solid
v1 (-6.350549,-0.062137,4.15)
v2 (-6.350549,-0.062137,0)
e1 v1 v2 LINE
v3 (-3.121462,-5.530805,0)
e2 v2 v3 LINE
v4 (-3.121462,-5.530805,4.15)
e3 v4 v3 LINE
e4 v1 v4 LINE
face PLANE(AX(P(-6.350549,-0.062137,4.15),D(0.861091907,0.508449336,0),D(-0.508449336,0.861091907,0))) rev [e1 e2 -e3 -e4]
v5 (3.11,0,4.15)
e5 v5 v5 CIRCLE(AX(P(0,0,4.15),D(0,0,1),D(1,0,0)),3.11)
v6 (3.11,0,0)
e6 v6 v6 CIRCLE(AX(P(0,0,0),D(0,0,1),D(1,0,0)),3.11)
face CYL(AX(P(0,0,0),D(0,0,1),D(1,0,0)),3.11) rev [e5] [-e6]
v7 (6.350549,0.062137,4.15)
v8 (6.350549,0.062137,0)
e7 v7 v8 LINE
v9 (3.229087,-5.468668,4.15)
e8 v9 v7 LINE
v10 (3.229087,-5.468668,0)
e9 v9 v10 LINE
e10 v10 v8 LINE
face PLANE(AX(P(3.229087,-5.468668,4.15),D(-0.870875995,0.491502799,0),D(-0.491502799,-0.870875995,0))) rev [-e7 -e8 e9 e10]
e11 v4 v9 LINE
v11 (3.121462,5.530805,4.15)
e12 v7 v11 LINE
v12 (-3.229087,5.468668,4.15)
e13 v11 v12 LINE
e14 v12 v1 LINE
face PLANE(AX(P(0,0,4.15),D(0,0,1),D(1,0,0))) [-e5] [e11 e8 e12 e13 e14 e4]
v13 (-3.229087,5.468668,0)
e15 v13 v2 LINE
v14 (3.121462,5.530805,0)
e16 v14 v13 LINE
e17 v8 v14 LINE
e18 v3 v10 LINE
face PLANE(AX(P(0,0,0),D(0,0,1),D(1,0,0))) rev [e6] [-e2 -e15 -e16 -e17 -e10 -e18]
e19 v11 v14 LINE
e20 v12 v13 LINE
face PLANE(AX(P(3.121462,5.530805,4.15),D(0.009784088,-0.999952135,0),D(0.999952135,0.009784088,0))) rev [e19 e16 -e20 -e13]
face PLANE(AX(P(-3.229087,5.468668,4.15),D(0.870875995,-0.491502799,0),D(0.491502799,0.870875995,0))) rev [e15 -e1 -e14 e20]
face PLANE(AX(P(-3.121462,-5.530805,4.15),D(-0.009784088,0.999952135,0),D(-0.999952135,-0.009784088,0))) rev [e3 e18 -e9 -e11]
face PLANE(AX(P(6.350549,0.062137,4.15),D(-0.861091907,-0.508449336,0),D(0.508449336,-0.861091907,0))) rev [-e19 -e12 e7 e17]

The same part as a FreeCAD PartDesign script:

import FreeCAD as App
import Part
import Sketcher

doc = App.newDocument("Part")
body = doc.addObject("PartDesign::Body", "Body")

# Sketch on XY plane
sketch1 = doc.addObject("Sketcher::SketchObject", "Sketch")
body.addObject(sketch1)
sketch1.AttachmentSupport = (doc.XY_Plane, [""])
sketch1.MapMode = "FlatFace"
sketch1.addGeometry(Part.LineSegment(App.Vector(-3, 5, 0), App.Vector(-6, 0, 0)), False)
sketch1.addGeometry(Part.LineSegment(App.Vector(-6, 0, 0), App.Vector(-3, -6, 0)), False)
sketch1.addGeometry(Part.LineSegment(App.Vector(-3, -6, 0), App.Vector(3, -5, 0)), False)
sketch1.addGeometry(Part.LineSegment(App.Vector(3, -5, 0), App.Vector(6, 0, 0)), False)
sketch1.addGeometry(Part.LineSegment(App.Vector(6, 0, 0), App.Vector(3, 6, 0)), False)
sketch1.addGeometry(Part.LineSegment(App.Vector(3, 6, 0), App.Vector(-3, 5, 0)), False)
sketch1.addConstraint(Sketcher.Constraint("Coincident", 0, 2, 1, 1))
sketch1.addConstraint(Sketcher.Constraint("Coincident", 1, 2, 2, 1))
sketch1.addConstraint(Sketcher.Constraint("Coincident", 2, 2, 3, 1))
sketch1.addConstraint(Sketcher.Constraint("Coincident", 3, 2, 4, 1))
sketch1.addConstraint(Sketcher.Constraint("Coincident", 4, 2, 5, 1))
sketch1.addConstraint(Sketcher.Constraint("Coincident", 5, 2, 0, 1))
sketch1.addConstraint(Sketcher.Constraint("Symmetric", 0, 2, 3, 2, -1, 1))
sketch1.addConstraint(Sketcher.Constraint("Symmetric", 1, 2, 4, 2, -1, 1))
sketch1.addConstraint(Sketcher.Constraint("Symmetric", 2, 2, 5, 2, -1, 1))
sketch1.addConstraint(Sketcher.Constraint("Equal", 0, 1))
sketch1.addConstraint(Sketcher.Constraint("Equal", 1, 2))
sketch1.addConstraint(Sketcher.Constraint("DistanceX", 0, 2, -1, 1, 6.350549))
sketch1.addConstraint(Sketcher.Constraint("DistanceY", 2, 2, -1, 1, 5.468668))
sketch1.addConstraint(Sketcher.Constraint("DistanceY", 1, 2, 0, 2, 5.468668))
sketch1.addConstraint(Sketcher.Constraint("DistanceX", 1, 2, 2, 2, 6.350549))
pad1 = doc.addObject("PartDesign::Pad", "Pad")
body.addObject(pad1)
pad1.Profile = sketch1
pad1.Length = 4.15

# Sketch on XY plane
sketch2 = doc.addObject("Sketcher::SketchObject", "Sketch001")
body.addObject(sketch2)
sketch2.AttachmentSupport = (doc.XY_Plane, [""])
sketch2.MapMode = "FlatFace"
sketch2.AttachmentOffset = App.Placement(App.Vector(0, 0, 4.15), App.Rotation())
sketch2.addGeometry(Part.Circle(App.Vector(0, 0, 0), App.Vector(0, 0, 1), 3.1), False)
sketch2.addConstraint(Sketcher.Constraint("Coincident", 0, 3, -1, 1))
sketch2.addConstraint(Sketcher.Constraint("Diameter", 0, 6.22))
pocket1 = doc.addObject("PartDesign::Pocket", "Pocket")
body.addObject(pocket1)
pocket1.Profile = sketch2
pocket1.Type = "ThroughAll"

doc.recompute()
